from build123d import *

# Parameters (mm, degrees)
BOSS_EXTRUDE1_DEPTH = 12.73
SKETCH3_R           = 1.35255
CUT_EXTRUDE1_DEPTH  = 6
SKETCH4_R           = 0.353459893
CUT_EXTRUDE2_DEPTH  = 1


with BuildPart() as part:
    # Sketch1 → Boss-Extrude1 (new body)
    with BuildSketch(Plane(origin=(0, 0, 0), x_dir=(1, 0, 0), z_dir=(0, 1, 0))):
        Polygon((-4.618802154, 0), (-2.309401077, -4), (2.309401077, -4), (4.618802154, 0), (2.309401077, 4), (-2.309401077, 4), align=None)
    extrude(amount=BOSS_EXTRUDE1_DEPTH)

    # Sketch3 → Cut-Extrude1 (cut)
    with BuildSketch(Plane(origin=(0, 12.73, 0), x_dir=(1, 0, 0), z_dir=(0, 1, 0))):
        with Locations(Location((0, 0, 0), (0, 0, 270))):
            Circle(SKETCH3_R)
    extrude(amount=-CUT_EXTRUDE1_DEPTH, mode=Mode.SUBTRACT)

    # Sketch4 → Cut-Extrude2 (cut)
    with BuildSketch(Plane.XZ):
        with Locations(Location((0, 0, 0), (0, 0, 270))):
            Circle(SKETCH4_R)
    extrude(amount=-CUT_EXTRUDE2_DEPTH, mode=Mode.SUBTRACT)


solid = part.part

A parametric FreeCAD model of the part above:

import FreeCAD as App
import Part
import Sketcher

V = App.Vector
Q = App.Units.Quantity

doc = App.newDocument("Part")
body = doc.addObject("PartDesign::Body", "Body")

# Sketch on XZ plane
sketch1 = doc.addObject("Sketcher::SketchObject", "Sketch")
body.addObject(sketch1)
sketch1.AttachmentSupport = (doc.XZ_Plane, [""])
sketch1.MapMode = "FlatFace"
sketch1.addGeometry([
    Part.LineSegment(V(-4.6, 0, 0), V(-2.3, 4, 0)),  # 0
    Part.LineSegment(V(-2.3, 4, 0), V(2.3, 4, 0)),  # 1
    Part.LineSegment(V(2.3, 4, 0), V(4.6, 0, 0)),  # 2
    Part.LineSegment(V(4.6, 0, 0), V(2.3, -4, 0)),  # 3
    Part.LineSegment(V(2.3, -4, 0), V(-2.3, -4, 0)),  # 4
    Part.LineSegment(V(-2.3, -4, 0), V(-4.6, 0, 0)),  # 5
], False)
sketch1.addConstraint([
    Sketcher.Constraint("Coincident", 0, 2, 1, 1),
    Sketcher.Constraint("Coincident", 1, 2, 2, 1),
    Sketcher.Constraint("Coincident", 2, 2, 3, 1),
    Sketcher.Constraint("Coincident", 3, 2, 4, 1),
    Sketcher.Constraint("Coincident", 4, 2, 5, 1),
    Sketcher.Constraint("Coincident", 5, 2, 0, 1),
    Sketcher.Constraint("Horizontal", 1),
    Sketcher.Constraint("Horizontal", 4),
    Sketcher.Constraint("Symmetric", 0, 2, 3, 2, -1, 1),
    Sketcher.Constraint("Symmetric", 2, 2, 5, 2, -1, 1),
    Sketcher.Constraint("PointOnObject", 2, 2, -1),
    Sketcher.Constraint("Parallel", 2, 5),
    Sketcher.Constraint("Vertical", 1, 2, 3, 2),
    Sketcher.Constraint("Angle", 0, Q("60 deg")),
    Sketcher.Constraint("DistanceY", -1, 1, 0, 2, Q("4 mm")),
    Sketcher.Constraint("DistanceX", 0, 2, -1, 1, Q("2.309401 mm")),
])
pad1 = doc.addObject("PartDesign::Pad", "Pad")
body.addObject(pad1)
pad1.Profile = sketch1
pad1.Length = 12.73
pad1.Reversed = True

# Sketch on XZ plane
sketch2 = doc.addObject("Sketcher::SketchObject", "Sketch001")
body.addObject(sketch2)
sketch2.AttachmentSupport = (doc.XZ_Plane, [""])
sketch2.MapMode = "FlatFace"
sketch2.AttachmentOffset = App.Placement(V(0, 0, -12.73), App.Rotation())
sketch2.addGeometry(Part.Circle(V(0, 0, 0), V(0, 0, 1), 1.4), False)
sketch2.addConstraint([
    Sketcher.Constraint("Coincident", 0, 3, -1, 1),
    Sketcher.Constraint("Diameter", 0, Q("2.7051 mm")),
])
pocket1 = doc.addObject("PartDesign::Pocket", "Pocket")
body.addObject(pocket1)
pocket1.Profile = sketch2
pocket1.Length = 6
pocket1.Reversed = True

# Sketch on XZ plane
sketch3 = doc.addObject("Sketcher::SketchObject", "Sketch002")
body.addObject(sketch3)
sketch3.AttachmentSupport = (doc.XZ_Plane, [""])
sketch3.MapMode = "FlatFace"
sketch3.addGeometry(Part.Circle(V(0, 0, 0), V(0, 0, 1), 0.35), False)
sketch3.addConstraint([
    Sketcher.Constraint("Coincident", 0, 3, -1, 1),
    Sketcher.Constraint("Diameter", 0, Q("0.70692 mm")),
])
pocket2 = doc.addObject("PartDesign::Pocket", "Pocket001")
body.addObject(pocket2)
pocket2.Profile = sketch3
pocket2.Length = 1

doc.recompute()
